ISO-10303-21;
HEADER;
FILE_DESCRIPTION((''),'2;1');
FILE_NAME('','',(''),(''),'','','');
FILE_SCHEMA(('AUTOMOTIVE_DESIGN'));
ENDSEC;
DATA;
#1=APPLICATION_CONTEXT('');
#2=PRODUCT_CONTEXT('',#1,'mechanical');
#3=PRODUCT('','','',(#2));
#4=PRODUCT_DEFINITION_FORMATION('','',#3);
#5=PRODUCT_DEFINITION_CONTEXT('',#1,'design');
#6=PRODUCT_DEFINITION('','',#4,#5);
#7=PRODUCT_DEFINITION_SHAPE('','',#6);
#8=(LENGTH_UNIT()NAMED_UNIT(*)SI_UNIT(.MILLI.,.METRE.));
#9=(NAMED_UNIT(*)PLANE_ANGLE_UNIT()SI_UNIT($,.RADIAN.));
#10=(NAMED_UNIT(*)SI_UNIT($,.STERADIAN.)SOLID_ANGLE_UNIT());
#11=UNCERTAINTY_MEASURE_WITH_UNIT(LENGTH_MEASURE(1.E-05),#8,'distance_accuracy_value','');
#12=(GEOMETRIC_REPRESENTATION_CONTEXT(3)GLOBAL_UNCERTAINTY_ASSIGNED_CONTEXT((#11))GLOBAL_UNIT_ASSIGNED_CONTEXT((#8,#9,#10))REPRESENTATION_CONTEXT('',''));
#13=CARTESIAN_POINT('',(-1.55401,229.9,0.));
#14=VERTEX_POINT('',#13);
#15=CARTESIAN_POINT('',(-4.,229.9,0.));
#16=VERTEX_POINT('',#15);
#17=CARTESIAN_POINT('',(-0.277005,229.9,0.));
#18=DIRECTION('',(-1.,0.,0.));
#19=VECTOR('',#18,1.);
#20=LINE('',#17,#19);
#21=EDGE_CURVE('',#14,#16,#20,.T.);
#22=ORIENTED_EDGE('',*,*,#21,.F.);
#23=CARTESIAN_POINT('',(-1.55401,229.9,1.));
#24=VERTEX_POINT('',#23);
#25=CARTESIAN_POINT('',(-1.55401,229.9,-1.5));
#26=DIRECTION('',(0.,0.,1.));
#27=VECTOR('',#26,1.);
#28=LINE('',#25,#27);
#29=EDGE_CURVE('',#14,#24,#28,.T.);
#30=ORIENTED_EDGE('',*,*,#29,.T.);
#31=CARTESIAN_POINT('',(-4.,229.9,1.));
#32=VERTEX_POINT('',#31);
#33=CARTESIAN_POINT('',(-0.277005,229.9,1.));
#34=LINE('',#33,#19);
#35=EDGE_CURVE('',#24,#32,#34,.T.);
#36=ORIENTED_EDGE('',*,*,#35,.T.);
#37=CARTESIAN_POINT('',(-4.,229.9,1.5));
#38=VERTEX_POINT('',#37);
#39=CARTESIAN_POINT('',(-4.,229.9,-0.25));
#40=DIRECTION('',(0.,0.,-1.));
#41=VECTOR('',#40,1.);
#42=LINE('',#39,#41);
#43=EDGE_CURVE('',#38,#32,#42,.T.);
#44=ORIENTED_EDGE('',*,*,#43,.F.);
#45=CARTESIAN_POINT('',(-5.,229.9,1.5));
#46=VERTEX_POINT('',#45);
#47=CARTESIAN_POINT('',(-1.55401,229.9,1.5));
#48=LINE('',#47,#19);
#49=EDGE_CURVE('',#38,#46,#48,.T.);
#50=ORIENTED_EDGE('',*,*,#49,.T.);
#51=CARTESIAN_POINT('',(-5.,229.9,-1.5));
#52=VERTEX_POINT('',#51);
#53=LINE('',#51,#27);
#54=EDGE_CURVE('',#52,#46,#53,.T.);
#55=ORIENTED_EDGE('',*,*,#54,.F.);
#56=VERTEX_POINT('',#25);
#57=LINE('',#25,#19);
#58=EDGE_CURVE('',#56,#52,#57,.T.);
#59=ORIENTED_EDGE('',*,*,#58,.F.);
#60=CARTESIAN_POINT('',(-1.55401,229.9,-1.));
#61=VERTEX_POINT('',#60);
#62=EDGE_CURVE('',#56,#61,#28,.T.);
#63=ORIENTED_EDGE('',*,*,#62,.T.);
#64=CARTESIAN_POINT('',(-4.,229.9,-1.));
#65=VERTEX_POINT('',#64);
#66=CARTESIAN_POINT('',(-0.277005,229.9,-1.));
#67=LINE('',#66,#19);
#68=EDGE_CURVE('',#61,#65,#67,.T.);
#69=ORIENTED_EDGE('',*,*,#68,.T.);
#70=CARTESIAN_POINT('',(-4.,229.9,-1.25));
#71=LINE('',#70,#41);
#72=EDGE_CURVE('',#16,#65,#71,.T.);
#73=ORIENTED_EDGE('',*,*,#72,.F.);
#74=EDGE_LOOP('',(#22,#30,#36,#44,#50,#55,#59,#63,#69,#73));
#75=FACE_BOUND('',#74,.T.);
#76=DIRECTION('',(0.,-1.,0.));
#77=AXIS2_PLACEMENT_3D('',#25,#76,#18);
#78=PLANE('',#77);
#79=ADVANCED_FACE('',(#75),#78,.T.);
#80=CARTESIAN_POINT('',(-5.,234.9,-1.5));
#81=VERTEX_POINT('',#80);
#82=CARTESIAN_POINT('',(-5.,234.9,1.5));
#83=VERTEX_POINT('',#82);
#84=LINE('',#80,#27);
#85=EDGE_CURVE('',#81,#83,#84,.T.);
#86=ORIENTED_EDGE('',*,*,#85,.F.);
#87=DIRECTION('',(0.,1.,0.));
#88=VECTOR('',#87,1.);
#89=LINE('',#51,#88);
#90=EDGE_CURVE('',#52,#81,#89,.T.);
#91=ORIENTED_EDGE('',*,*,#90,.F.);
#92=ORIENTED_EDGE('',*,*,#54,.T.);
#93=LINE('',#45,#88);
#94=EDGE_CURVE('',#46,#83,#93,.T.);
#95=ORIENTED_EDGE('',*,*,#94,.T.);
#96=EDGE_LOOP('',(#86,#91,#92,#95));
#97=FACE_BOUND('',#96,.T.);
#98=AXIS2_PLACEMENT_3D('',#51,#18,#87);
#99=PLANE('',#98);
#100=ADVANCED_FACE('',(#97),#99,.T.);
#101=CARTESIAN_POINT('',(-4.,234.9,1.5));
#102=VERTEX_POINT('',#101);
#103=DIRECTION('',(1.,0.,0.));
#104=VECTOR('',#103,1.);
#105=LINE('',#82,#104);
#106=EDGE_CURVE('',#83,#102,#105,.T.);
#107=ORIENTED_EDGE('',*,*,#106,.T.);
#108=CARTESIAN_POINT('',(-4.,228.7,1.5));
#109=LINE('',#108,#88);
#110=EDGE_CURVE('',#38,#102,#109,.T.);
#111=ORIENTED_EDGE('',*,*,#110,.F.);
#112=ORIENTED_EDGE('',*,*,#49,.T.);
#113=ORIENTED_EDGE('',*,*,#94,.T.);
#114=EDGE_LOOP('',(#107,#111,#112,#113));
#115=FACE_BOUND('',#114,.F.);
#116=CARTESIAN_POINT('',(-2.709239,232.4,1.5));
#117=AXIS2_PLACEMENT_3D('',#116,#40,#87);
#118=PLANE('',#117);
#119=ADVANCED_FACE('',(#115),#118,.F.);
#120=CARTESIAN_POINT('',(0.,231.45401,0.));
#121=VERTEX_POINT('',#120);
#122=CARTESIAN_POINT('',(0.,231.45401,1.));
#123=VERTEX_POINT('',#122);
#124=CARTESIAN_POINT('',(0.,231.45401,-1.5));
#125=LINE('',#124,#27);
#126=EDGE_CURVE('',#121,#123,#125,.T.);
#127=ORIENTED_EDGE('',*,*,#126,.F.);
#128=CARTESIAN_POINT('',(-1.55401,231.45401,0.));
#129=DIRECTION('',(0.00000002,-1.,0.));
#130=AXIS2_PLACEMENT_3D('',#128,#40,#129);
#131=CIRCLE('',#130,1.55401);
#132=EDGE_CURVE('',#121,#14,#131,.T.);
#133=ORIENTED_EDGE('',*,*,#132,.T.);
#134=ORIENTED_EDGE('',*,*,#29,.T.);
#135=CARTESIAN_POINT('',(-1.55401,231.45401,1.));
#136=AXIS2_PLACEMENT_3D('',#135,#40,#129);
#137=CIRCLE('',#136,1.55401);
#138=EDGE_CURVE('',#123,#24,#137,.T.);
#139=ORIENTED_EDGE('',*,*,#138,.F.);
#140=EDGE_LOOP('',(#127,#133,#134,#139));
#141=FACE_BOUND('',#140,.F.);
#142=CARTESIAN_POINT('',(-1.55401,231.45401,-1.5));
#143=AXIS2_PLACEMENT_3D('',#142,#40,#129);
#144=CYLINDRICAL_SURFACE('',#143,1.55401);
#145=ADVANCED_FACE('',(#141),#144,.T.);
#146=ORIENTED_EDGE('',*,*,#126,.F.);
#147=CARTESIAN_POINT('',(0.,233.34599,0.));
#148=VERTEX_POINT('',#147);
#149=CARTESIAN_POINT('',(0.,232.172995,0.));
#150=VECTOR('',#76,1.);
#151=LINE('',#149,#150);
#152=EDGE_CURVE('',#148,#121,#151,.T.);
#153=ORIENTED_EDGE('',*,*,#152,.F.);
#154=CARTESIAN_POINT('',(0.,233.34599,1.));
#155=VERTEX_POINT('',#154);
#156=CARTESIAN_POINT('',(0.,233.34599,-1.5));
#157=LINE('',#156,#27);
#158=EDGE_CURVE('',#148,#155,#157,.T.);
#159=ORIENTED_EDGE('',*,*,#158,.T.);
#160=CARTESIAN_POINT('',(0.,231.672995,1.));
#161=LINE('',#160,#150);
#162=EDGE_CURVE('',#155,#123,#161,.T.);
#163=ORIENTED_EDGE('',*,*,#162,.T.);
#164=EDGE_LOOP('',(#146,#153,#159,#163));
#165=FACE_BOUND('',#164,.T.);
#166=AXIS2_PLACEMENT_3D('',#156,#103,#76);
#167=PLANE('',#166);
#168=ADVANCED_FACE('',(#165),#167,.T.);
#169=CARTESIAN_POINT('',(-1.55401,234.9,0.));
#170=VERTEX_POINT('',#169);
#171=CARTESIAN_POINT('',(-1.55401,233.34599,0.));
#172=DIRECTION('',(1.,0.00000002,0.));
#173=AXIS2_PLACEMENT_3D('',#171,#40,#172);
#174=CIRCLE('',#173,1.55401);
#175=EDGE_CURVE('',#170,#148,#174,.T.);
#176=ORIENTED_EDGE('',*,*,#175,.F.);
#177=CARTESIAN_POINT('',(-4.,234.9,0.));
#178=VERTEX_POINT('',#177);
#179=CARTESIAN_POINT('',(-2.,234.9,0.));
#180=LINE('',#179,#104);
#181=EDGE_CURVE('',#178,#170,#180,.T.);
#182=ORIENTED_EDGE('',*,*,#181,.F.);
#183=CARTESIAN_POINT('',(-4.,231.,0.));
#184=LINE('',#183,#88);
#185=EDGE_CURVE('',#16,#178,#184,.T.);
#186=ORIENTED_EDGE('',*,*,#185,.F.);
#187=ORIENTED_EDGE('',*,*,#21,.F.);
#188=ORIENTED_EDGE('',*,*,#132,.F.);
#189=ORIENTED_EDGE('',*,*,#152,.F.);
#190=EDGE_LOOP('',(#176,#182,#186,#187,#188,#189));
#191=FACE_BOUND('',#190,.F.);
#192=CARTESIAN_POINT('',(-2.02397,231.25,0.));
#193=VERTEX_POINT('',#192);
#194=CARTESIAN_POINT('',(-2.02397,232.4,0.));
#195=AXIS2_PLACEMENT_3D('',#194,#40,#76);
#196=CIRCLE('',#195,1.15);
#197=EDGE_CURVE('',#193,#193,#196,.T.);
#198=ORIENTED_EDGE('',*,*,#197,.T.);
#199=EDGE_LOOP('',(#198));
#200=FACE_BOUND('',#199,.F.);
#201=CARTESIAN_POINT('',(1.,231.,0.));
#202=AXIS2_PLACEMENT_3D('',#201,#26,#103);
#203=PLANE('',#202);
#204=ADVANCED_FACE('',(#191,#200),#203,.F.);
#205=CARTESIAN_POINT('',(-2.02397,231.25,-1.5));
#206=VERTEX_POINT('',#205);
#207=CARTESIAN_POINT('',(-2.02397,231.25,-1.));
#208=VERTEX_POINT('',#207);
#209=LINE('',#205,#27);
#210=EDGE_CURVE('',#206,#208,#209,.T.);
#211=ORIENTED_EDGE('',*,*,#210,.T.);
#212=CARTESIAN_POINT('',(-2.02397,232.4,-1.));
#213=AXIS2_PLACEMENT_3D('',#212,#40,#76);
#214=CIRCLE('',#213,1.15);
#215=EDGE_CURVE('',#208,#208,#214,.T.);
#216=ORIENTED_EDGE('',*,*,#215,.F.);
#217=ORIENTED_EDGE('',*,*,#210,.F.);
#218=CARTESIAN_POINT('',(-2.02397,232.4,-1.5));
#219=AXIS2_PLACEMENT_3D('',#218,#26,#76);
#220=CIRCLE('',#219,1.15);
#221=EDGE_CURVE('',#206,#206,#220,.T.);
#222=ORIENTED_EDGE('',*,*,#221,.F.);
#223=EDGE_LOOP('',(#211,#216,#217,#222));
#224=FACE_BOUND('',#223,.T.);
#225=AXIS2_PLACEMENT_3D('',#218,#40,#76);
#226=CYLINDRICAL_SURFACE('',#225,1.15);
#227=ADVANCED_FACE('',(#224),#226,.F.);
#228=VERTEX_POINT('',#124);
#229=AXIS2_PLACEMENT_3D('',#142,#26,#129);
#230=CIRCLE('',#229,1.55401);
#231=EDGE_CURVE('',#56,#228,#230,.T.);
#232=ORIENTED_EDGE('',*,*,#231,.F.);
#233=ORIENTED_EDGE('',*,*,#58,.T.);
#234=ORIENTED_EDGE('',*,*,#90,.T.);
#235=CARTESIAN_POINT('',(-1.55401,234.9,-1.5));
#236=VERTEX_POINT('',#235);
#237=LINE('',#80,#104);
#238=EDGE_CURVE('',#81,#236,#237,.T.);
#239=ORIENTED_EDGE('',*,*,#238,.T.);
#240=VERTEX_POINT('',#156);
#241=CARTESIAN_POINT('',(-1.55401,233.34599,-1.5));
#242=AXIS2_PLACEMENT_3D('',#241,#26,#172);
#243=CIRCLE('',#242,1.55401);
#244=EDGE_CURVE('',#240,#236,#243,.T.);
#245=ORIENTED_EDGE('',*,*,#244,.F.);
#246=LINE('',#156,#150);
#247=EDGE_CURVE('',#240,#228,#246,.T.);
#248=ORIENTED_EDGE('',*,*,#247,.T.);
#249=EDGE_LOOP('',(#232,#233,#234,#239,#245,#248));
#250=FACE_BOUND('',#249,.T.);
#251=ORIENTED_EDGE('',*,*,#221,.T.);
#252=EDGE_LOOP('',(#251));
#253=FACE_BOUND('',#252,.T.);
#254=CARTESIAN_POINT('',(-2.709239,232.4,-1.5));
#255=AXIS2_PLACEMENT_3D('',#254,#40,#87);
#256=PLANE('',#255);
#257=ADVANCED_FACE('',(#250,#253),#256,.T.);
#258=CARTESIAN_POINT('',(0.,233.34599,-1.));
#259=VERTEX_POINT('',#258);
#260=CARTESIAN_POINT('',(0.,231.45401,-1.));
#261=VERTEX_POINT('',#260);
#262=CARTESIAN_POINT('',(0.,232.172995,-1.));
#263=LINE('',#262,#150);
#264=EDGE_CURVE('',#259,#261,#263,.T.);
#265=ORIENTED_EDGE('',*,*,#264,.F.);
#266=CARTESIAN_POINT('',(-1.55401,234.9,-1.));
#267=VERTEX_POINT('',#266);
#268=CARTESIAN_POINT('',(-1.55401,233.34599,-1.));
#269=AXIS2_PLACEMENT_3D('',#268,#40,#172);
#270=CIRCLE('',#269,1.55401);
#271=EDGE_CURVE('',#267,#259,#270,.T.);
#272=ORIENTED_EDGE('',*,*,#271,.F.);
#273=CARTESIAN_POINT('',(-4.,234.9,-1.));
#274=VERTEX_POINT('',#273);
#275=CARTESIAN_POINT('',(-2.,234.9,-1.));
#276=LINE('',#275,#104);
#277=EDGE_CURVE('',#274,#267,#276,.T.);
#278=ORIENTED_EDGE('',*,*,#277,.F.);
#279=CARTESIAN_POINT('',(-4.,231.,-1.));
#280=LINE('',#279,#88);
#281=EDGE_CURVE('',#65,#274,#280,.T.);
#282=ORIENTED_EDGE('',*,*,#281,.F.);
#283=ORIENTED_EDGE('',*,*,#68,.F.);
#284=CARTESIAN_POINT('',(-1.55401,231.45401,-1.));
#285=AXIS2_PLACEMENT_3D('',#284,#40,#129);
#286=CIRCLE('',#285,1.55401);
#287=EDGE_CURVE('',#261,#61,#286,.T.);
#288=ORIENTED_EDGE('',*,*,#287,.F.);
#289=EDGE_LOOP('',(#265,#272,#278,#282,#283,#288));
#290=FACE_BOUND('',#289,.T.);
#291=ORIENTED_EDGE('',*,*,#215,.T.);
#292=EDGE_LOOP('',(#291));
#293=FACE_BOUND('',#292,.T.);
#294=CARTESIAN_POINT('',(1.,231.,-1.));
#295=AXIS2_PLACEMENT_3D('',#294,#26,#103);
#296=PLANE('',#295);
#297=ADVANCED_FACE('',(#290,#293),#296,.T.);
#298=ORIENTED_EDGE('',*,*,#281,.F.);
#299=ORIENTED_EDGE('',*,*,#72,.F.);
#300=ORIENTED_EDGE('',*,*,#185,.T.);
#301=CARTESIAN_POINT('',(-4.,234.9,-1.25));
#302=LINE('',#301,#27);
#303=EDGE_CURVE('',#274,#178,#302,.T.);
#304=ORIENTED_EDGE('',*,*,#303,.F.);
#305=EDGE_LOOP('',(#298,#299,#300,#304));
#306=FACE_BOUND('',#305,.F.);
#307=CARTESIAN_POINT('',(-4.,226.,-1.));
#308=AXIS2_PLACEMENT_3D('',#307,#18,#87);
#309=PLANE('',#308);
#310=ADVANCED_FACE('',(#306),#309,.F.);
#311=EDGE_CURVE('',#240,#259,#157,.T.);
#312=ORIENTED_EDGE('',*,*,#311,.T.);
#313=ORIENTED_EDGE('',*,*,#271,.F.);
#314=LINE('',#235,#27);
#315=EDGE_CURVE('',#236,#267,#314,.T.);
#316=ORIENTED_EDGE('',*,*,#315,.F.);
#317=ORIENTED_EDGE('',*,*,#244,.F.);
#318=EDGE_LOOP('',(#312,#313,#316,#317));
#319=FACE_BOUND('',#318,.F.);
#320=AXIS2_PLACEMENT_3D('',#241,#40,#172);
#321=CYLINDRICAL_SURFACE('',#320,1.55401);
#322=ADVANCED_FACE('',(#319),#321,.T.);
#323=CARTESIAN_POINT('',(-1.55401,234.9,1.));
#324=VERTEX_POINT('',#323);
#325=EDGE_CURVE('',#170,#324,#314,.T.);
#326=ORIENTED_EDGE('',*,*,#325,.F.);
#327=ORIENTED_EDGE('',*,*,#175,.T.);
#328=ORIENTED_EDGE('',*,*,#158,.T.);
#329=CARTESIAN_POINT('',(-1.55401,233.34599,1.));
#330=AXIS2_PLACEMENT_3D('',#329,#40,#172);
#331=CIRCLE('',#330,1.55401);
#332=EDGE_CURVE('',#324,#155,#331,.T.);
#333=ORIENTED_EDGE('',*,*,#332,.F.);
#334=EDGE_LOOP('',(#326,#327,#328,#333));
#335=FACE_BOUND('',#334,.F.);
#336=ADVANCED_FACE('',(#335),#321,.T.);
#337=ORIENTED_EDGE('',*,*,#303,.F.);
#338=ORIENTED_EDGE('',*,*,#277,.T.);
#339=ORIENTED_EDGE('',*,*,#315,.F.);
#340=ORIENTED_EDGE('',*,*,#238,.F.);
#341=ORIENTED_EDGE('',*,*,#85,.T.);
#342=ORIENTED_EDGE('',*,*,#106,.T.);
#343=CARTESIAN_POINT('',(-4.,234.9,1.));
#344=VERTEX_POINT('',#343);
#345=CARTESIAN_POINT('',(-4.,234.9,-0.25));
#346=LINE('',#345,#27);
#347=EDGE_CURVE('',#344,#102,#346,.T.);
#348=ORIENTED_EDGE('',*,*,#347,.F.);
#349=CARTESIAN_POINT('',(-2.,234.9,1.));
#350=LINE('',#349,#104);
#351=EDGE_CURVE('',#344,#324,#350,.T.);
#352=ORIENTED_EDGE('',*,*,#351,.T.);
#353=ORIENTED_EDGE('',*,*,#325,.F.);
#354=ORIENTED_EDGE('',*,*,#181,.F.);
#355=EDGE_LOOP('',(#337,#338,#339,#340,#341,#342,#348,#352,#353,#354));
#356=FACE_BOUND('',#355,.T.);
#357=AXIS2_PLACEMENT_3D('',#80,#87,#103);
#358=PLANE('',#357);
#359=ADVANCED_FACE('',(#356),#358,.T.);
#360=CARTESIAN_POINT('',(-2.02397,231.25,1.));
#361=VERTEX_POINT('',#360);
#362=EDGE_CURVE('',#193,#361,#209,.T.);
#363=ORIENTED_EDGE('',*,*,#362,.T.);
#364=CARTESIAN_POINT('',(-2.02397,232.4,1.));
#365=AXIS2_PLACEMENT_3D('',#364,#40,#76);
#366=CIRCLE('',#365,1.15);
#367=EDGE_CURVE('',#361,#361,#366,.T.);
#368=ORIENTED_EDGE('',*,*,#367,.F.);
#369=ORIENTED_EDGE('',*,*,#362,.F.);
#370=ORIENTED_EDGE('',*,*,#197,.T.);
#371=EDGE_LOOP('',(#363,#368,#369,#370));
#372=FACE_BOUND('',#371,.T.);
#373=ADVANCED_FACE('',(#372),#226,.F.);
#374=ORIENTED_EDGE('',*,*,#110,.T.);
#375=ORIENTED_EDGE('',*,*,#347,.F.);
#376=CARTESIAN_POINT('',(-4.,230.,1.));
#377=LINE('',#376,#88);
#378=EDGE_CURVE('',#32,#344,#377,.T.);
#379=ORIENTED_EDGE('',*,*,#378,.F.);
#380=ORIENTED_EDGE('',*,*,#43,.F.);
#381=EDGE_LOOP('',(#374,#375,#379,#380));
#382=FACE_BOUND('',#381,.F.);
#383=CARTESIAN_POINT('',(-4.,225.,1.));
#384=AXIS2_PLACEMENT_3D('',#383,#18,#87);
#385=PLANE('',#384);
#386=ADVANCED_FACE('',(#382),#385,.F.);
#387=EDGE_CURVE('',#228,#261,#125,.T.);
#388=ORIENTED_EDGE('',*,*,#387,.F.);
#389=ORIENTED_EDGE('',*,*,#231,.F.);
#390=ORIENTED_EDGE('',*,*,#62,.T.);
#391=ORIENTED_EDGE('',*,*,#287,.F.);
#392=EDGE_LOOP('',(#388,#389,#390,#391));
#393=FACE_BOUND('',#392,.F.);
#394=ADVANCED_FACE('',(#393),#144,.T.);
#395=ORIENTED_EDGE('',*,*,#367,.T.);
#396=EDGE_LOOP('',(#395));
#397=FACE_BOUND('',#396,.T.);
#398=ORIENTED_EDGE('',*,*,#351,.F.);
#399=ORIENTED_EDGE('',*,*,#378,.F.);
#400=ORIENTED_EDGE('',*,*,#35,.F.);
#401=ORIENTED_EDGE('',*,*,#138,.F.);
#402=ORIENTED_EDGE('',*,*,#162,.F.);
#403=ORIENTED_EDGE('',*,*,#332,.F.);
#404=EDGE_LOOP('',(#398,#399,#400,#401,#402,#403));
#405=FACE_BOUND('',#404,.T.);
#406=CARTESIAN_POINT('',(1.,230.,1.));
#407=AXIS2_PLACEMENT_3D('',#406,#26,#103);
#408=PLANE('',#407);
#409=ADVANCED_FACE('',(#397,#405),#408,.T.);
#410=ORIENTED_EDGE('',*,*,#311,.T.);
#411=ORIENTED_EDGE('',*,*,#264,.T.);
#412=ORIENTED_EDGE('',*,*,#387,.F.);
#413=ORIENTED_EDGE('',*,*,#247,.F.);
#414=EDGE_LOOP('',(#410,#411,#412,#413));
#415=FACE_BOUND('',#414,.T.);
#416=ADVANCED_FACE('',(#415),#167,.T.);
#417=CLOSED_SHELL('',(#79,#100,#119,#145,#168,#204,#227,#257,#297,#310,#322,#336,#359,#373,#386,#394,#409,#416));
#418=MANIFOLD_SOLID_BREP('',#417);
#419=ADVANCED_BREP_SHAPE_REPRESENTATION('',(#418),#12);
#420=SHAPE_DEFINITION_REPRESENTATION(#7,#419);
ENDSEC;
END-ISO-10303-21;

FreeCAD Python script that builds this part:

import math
import FreeCAD as App
import Part
import Sketcher
from FreeCAD import Vector
Q = App.Units.Quantity

doc = App.newDocument("Part")
body = doc.addObject("PartDesign::Body", "Body")

sketch1 = body.newObject("Sketcher::SketchObject", "Sketch")
sketch1.AttachmentSupport = (doc.getObject("XY_Plane"), [""])
sketch1.MapMode = "FlatFace"
sketch1.AttachmentOffset = App.Placement(Vector(0, 0, -1), App.Rotation())
sketch1.addGeometry(Part.LineSegment(Vector(-4, 236, 0), Vector(-4, 226, 0)), False)
sketch1.addGeometry(Part.LineSegment(Vector(-4, 226, 0), Vector(6, 226, 0)), False)
sketch1.addGeometry(Part.LineSegment(Vector(6, 226, 0), Vector(6, 236, 0)), False)
sketch1.addGeometry(Part.LineSegment(Vector(6, 236, 0), Vector(-4, 236, 0)), False)
sketch1.addConstraint(Sketcher.Constraint("Coincident", 0, 2, 1, 1))
sketch1.addConstraint(Sketcher.Constraint("Coincident", 1, 2, 2, 1))
sketch1.addConstraint(Sketcher.Constraint("Coincident", 2, 2, 3, 1))
sketch1.addConstraint(Sketcher.Constraint("Coincident", 3, 2, 0, 1))
sketch1.addConstraint(Sketcher.Constraint("Vertical", 0))
sketch1.addConstraint(Sketcher.Constraint("Horizontal", 1))
sketch1.addConstraint(Sketcher.Constraint("Vertical", 2))
sketch1.addConstraint(Sketcher.Constraint("Horizontal", 3))
sketch1.addConstraint(Sketcher.Constraint("Equal", 3, 0))
sketch1.addConstraint(Sketcher.Constraint("DistanceX", 1, 1, 1, 2, Q("10 mm")))
sketch1.addConstraint(Sketcher.Constraint("DistanceX", 0, 2, -1, 1, Q("4 mm")))
sketch1.addConstraint(Sketcher.Constraint("DistanceY", -1, 1, 0, 2, Q("226 mm")))
pad1 = body.newObject("PartDesign::Pad", "Pad")
pad1.Profile = sketch1
pad1.Length = 1
body2 = doc.addObject("PartDesign::Body", "Body001")

sketch2 = body2.newObject("Sketcher::SketchObject", "Sketch001")
sketch2.AttachmentSupport = (doc.getObject("XY_Plane001"), [""])
sketch2.MapMode = "FlatFace"
sketch2.AttachmentOffset = App.Placement(Vector(0, 0, 1), App.Rotation())
sketch2.addGeometry(Part.LineSegment(Vector(-4, 235, 0), Vector(-4, 225, 0)), False)
sketch2.addGeometry(Part.LineSegment(Vector(-4, 225, 0), Vector(6, 225, 0)), False)
sketch2.addGeometry(Part.LineSegment(Vector(6, 225, 0), Vector(6, 235, 0)), False)
sketch2.addGeometry(Part.LineSegment(Vector(6, 235, 0), Vector(-4, 235, 0)), False)
sketch2.addConstraint(Sketcher.Constraint("Coincident", 0, 2, 1, 1))
sketch2.addConstraint(Sketcher.Constraint("Coincident", 1, 2, 2, 1))
sketch2.addConstraint(Sketcher.Constraint("Coincident", 2, 2, 3, 1))
sketch2.addConstraint(Sketcher.Constraint("Coincident", 3, 2, 0, 1))
sketch2.addConstraint(Sketcher.Constraint("Vertical", 0))
sketch2.addConstraint(Sketcher.Constraint("Horizontal", 1))
sketch2.addConstraint(Sketcher.Constraint("Vertical", 2))
sketch2.addConstraint(Sketcher.Constraint("Horizontal", 3))
sketch2.addConstraint(Sketcher.Constraint("Equal", 3, 0))
sketch2.addConstraint(Sketcher.Constraint("DistanceX", 1, 1, 1, 2, Q("10 mm")))
sketch2.addConstraint(Sketcher.Constraint("DistanceX", 0, 2, -1, 1, Q("4 mm")))
sketch2.addConstraint(Sketcher.Constraint("DistanceY", -1, 1, 0, 2, Q("225 mm")))
pad2 = body2.newObject("PartDesign::Pad", "Pad001")
pad2.Profile = sketch2
pad2.Length = 10
body3 = doc.addObject("PartDesign::Body", "Body002")

sketch3 = body3.newObject("Sketcher::SketchObject", "Sketch002")
sketch3.AttachmentSupport = (doc.getObject("XY_Plane002"), [""])
sketch3.MapMode = "FlatFace"
sketch3.addGeometry(Part.LineSegment(Vector(0.9, 5, 0), Vector(-0.9, 5, 0)), False)
sketch3.addGeometry(Part.ArcOfCircle(Part.Circle(Vector(-0.9, 3.4, 0), Vector(0, 0, 1), 1.6), math.radians(90), math.radians(180)), False)
sketch3.addGeometry(Part.LineSegment(Vector(-2.5, 3.4, 0), Vector(-2.5, 0, 0)), False)
sketch3.addGeometry(Part.LineSegment(Vector(-2.5, 0, 0), Vector(2.5, 0, 0)), False)
sketch3.addGeometry(Part.LineSegment(Vector(2.5, 0, 0), Vector(2.5, 3.4, 0)), False)
sketch3.addGeometry(Part.ArcOfCircle(Part.Circle(Vector(0.9, 3.4, 0), Vector(0, 0, 1), 1.6), math.radians(0), math.radians(90)), False)
sketch3.addGeometry(Part.Circle(Vector(0, 3, 0), Vector(0, 0, 1), 1.1), False)
sketch3.addConstraint(Sketcher.Constraint("Tangent", 0, 2, 1, 1))
sketch3.addConstraint(Sketcher.Constraint("Tangent", 1, 2, 2, 1))
sketch3.addConstraint(Sketcher.Constraint("Coincident", 2, 2, 3, 1))
sketch3.addConstraint(Sketcher.Constraint("Coincident", 3, 2, 4, 1))
sketch3.addConstraint(Sketcher.Constraint("Tangent", 4, 2, 5, 1))
sketch3.addConstraint(Sketcher.Constraint("Tangent", 5, 2, 0, 1))
sketch3.addConstraint(Sketcher.Constraint("Horizontal", 0))
sketch3.addConstraint(Sketcher.Constraint("Vertical", 2))
sketch3.addConstraint(Sketcher.Constraint("Horizontal", 3))
sketch3.addConstraint(Sketcher.Constraint("Vertical", 4))
sketch3.addConstraint(Sketcher.Constraint("Equal", 1, 5))
sketch3.addConstraint(Sketcher.Constraint("Symmetric", 2, 2, 3, 2, -1, 1))
sketch3.addConstraint(Sketcher.Constraint("PointOnObject", 6, 3, -2))
sketch3.addConstraint(Sketcher.Constraint("Diameter", 6, Q("2.3 mm")))
sketch3.addConstraint(Sketcher.Constraint("DistanceX", 3, 1, 3, 2, Q("5 mm")))
sketch3.addConstraint(Sketcher.Constraint("DistanceY", -1, 1, 0, 2, Q("5 mm")))
sketch3.addConstraint(Sketcher.Constraint("Radius", 1, Q("1.55401 mm")))
sketch3.addConstraint(Sketcher.Constraint("DistanceY", -1, 1, 6, 3, Q("2.97603 mm")))
pad3 = body3.newObject("PartDesign::Pad", "Pad002")
pad3.Profile = sketch3
pad3.Length = 3
body4 = doc.addObject("PartDesign::Body", "Body003")
doc.recompute()

body3.Placement = App.Placement(Vector(-5, 232.4, 0), App.Rotation(Vector(0, 0, 1), 270))
boolean = body4.newObject("PartDesign::Boolean", "Boolean")
boolean.Type = "Fuse"
boolean.addObjects([body3])
body5 = doc.addObject("PartDesign::Body", "Body004")
doc.recompute()

body4.Placement = App.Placement(Vector(0, 0, -1.5), App.Rotation(Vector(0, 0, 1), 0))
boolean2 = body5.newObject("PartDesign::Boolean", "Boolean001")
boolean2.Type = "Fuse"
boolean2.addObjects([body4])
doc.recompute()

boolean3 = body5.newObject("PartDesign::Boolean", "Boolean002")
boolean3.Type = "Cut"
boolean3.addObjects([body2])
doc.recompute()

boolean4 = body5.newObject("PartDesign::Boolean", "Boolean003")
boolean4.Type = "Cut"
boolean4.addObjects([body])

doc.recompute()
